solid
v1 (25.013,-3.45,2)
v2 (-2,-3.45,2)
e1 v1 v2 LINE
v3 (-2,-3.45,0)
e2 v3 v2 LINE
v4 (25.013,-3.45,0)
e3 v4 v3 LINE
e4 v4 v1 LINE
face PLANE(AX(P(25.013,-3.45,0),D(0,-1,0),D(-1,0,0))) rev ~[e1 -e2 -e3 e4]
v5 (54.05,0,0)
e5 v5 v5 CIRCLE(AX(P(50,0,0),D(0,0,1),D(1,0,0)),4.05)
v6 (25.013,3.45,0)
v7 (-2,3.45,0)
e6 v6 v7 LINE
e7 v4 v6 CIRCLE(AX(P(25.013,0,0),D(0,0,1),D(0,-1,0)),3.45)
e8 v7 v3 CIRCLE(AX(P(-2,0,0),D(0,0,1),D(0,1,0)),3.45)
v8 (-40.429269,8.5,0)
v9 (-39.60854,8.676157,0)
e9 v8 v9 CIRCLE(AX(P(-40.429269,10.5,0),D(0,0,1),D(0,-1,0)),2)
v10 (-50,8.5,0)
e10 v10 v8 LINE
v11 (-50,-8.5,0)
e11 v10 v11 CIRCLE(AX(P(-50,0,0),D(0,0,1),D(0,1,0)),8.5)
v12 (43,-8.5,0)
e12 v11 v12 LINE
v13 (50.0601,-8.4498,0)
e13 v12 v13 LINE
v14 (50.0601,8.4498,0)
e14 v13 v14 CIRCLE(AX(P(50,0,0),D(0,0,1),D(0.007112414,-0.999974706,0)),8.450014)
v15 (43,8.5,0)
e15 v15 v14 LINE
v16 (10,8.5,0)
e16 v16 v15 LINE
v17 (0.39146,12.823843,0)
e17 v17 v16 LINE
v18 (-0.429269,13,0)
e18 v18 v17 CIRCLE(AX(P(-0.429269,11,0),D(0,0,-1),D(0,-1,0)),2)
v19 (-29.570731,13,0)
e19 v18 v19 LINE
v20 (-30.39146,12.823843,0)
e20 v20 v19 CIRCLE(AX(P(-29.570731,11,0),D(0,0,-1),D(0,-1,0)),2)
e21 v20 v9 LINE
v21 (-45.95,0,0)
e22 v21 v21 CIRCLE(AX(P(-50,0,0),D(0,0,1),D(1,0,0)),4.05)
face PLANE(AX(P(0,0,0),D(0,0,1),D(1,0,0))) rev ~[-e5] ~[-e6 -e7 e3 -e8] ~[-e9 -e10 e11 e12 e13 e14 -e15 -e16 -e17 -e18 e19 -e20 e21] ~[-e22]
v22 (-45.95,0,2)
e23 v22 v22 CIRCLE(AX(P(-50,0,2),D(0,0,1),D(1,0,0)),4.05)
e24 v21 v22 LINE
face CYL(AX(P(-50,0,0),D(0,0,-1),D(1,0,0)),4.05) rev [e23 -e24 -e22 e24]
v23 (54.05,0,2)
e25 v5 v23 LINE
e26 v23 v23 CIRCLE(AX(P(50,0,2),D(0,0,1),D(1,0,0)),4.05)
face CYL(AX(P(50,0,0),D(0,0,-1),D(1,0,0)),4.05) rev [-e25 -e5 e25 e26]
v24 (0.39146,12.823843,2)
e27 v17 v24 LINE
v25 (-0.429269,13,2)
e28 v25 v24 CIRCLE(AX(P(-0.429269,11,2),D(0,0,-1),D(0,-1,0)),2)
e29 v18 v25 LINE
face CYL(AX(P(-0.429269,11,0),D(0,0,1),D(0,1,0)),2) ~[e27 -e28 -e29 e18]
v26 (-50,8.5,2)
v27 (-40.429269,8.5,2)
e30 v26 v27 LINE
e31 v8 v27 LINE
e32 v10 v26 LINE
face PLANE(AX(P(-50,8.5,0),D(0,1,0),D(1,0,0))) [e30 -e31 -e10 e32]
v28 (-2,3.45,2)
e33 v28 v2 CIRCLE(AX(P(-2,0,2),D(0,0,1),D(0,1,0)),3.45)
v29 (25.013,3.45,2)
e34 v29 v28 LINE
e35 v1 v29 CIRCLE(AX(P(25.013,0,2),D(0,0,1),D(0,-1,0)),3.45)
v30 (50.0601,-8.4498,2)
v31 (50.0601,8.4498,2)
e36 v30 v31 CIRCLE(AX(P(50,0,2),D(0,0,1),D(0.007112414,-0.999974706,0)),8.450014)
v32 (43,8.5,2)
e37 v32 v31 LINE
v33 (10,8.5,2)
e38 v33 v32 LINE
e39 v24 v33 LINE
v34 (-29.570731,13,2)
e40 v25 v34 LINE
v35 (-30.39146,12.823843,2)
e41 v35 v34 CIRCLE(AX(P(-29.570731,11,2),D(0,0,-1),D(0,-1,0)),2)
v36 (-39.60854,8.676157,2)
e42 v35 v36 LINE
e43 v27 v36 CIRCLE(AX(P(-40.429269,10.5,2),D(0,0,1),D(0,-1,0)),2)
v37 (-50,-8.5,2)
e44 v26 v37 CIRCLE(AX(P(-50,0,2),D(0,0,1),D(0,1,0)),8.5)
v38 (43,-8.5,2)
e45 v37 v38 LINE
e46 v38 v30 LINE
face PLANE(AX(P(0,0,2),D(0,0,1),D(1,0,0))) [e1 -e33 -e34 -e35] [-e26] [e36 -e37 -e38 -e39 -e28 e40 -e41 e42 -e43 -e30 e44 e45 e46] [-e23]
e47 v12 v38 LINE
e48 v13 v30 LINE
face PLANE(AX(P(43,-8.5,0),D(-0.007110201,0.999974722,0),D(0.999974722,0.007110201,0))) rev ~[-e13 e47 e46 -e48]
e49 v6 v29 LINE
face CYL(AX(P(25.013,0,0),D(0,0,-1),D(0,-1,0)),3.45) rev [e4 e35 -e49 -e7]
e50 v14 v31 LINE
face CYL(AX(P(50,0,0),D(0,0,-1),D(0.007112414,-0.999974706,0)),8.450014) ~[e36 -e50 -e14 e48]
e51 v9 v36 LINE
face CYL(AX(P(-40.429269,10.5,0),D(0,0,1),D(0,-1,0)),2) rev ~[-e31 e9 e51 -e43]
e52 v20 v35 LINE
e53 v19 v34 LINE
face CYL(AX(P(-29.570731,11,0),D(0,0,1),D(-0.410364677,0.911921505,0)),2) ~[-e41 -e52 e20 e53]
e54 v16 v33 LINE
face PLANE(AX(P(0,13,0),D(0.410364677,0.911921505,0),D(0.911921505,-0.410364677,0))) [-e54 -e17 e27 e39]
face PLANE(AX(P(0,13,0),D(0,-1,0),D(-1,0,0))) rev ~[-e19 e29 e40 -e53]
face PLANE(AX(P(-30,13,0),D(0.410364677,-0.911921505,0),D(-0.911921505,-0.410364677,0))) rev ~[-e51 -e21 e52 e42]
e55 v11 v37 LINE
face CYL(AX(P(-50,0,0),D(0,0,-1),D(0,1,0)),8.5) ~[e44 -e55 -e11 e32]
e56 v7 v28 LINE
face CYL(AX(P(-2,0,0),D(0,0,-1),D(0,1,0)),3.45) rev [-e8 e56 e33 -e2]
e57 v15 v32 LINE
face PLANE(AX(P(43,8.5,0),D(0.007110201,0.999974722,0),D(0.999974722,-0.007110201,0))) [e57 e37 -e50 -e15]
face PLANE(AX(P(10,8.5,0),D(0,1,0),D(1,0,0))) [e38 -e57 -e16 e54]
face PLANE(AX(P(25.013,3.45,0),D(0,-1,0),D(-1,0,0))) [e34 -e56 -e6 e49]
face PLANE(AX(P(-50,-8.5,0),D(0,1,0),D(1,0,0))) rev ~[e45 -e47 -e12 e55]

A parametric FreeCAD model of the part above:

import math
import FreeCAD as App
import Part
import Sketcher

V = App.Vector
Q = App.Units.Quantity


def edges_at(feature, points):
    """Names of the edges that pass closest to the given points."""
    edges = feature.Shape.Edges
    near = lambda p: min(range(len(edges)), key=lambda i: edges[i].distToShape(Part.Vertex(*p))[0])
    return sorted({f"Edge{near(p) + 1}" for p in points})

doc = App.newDocument("Part")
params = doc.addObject("Spreadsheet::Sheet", "Params")
for row, (alias, value) in enumerate([
    ("sketch1_diameter", "3.1 mm"),
    ("sketch1_diameter2", "8.1 mm"),
    ("sketch1_radius", "8.5 mm"),
    ("sketch1_width", "10 mm"),
    ("sketch1_width2", "30 mm"),
    ("pad1_length", "2 mm"),
    ("fillet_radius", "2 mm"),
    ("sketch2_diameter", "3.1 mm"),
    ("pad2_length", "2 mm"),
], start=1):
    params.set(f"A{row}", alias)
    params.set(f"B{row}", "=" + value)
    params.setAlias(f"B{row}", alias)

body = doc.addObject("PartDesign::Body", "Body")

sketch1 = body.newObject("Sketcher::SketchObject", "Sketch")
sketch1.AttachmentSupport = (doc.getObject("XY_Plane"), [""])
sketch1.MapMode = "FlatFace"
sketch1.addGeometry([
    Part.LineSegment(V(-40, 8.5, 0), V(-50, 8.5, 0)),
    Part.ArcOfCircle(Part.Circle(V(-50, 0, 0), V(0, 0, 1), 8.5), math.radians(90), math.radians(270)),
    Part.LineSegment(V(-50, -8.5, 0), V(43, -8.5, 0)),
    Part.LineSegment(V(43, -8.5, 0), V(50.1, -8.4, 0)),
    Part.ArcOfCircle(Part.Circle(V(50, 0, 0), V(0, 0, 1), 8.5), math.radians(-90), math.radians(90)),
    Part.LineSegment(V(50.1, 8.4, 0), V(43, 8.5, 0)),
    Part.LineSegment(V(43, 8.5, 0), V(10, 8.5, 0)),
    Part.LineSegment(V(10, 8.5, 0), V(0, 13, 0)),
    Part.LineSegment(V(0, 13, 0), V(-30, 13, 0)),
    Part.LineSegment(V(-30, 13, 0), V(-40, 8.5, 0)),
    Part.Circle(V(-38.5, -6, 0), V(0, 0, 1), 1.6),
    Part.Circle(V(-26.5, -6, 0), V(0, 0, 1), 1.6),
    Part.Circle(V(-14.5, -6, 0), V(0, 0, 1), 1.6),
    Part.Circle(V(-50, 0, 0), V(0, 0, 1), 4),
    Part.ArcOfCircle(Part.Circle(V(25, 0, 0), V(0, 0, 1), 3.5), math.radians(-90), math.radians(90)),
    Part.LineSegment(V(25, -3.5, 0), V(-2, -3.5, 0)),
    Part.ArcOfCircle(Part.Circle(V(-2, 0, 0), V(0, 0, 1), 3.5), math.radians(90), math.radians(270)),
    Part.LineSegment(V(-2, 3.5, 0), V(25, 3.5, 0)),
    Part.Circle(V(50, 0, 0), V(0, 0, 1), 4),
], False)
sketch1.addConstraint([
    Sketcher.Constraint("Tangent", 0, 2, 1, 1),
    Sketcher.Constraint("Tangent", 1, 2, 2, 1),
    Sketcher.Constraint("Coincident", 2, 2, 3, 1),
    Sketcher.Constraint("Tangent", 3, 2, 4, 1),
    Sketcher.Constraint("Tangent", 4, 2, 5, 1),
    Sketcher.Constraint("Coincident", 5, 2, 6, 1),
    Sketcher.Constraint("Coincident", 6, 2, 7, 1),
    Sketcher.Constraint("Coincident", 7, 2, 8, 1),
    Sketcher.Constraint("Coincident", 8, 2, 9, 1),
    Sketcher.Constraint("Coincident", 9, 2, 0, 1),
    Sketcher.Constraint("Tangent", 14, 1, 15, 1),
    Sketcher.Constraint("Tangent", 15, 2, 16, 2),
    Sketcher.Constraint("Tangent", 16, 1, 17, 1),
    Sketcher.Constraint("Tangent", 17, 2, 14, 2),
    Sketcher.Constraint("Horizontal", 0),
    Sketcher.Constraint("Horizontal", 2),
    Sketcher.Constraint("Horizontal", 6),
    Sketcher.Constraint("Horizontal", 8),
    Sketcher.Constraint("Horizontal", 15),
    Sketcher.Constraint("Horizontal", 17),
    Sketcher.Constraint("Coincident", 13, 3, 1, 3),
    Sketcher.Constraint("Coincident", 18, 3, 4, 3),
    Sketcher.Constraint("Equal", 10, 11),
    Sketcher.Constraint("Equal", 11, 12),
    Sketcher.Constraint("Equal", 13, 18),
    Sketcher.Constraint("Symmetric", 1, 3, 4, 3, -1, 1),
    Sketcher.Constraint("Symmetric", 3, 2, 4, 2, -1),
    Sketcher.Constraint("PointOnObject", 14, 3, -1),
    Sketcher.Constraint("PointOnObject", 7, 2, -2),
    Sketcher.Constraint("Horizontal", 10, 3, 11, 3),
    Sketcher.Constraint("Horizontal", 11, 3, 12, 3),
    Sketcher.Constraint("Horizontal", 0, 2, 5, 2),
    Sketcher.Constraint("Equal", 7, 9),
    Sketcher.Constraint("Diameter", 10, Q("3.1 mm")),
    Sketcher.Constraint("Diameter", 13, Q("8.1 mm")),
    Sketcher.Constraint("Radius", 1, Q("8.5 mm")),
    Sketcher.Constraint("DistanceX", 0, 2, 0, 1, Q("10 mm")),
    Sketcher.Constraint("DistanceX", 8, 2, 8, 1, Q("30 mm")),
    Sketcher.Constraint("Radius", 4, Q("8.45 mm")),
    Sketcher.Constraint("Radius", 14, Q("3.45 mm")),
    Sketcher.Constraint("DistanceX", -1, 1, 6, 2, Q("10 mm")),
    Sketcher.Constraint("DistanceY", -1, 1, 7, 2, Q("13 mm")),
    Sketcher.Constraint("DistanceX", 16, 3, 18, 3, Q("52 mm")),
    Sketcher.Constraint("DistanceX", 2, 2, 4, 3, Q("7 mm")),
    Sketcher.Constraint("DistanceY", 1, 2, 10, 3, Q("2.5 mm")),
    Sketcher.Constraint("DistanceX", 10, 3, 8, 2, Q("8.5 mm")),
    Sketcher.Constraint("DistanceX", 15, 2, 15, 1, Q("27.013 mm")),
    Sketcher.Constraint("DistanceX", 10, 3, 11, 3, Q("12 mm")),
    Sketcher.Constraint("DistanceX", 11, 3, 12, 3, Q("12 mm")),
])
sketch1.setExpression("Constraints[33]", "Params.sketch1_diameter")
sketch1.setExpression("Constraints[34]", "Params.sketch1_diameter2")
sketch1.setExpression("Constraints[35]", "Params.sketch1_radius")
sketch1.setExpression("Constraints[36]", "Params.sketch1_width")
sketch1.setExpression("Constraints[37]", "Params.sketch1_width2")
pad1 = body.newObject("PartDesign::Pad", "Pad")
pad1.Profile = sketch1
pad1.setExpression("Length", "Params.pad1_length")
doc.recompute()

fillet = body.newObject("PartDesign::Fillet", "Fillet")
fillet.Base = (pad1, edges_at(pad1, [
    (-40, 8.5, 1),
    (-30, 13, 1),
    (0, 13, 1),
    (43, 8.5, 1),
]))
fillet.setExpression("Radius", "Params.fillet_radius")

sketch2 = body.newObject("Sketcher::SketchObject", "Sketch001")
sketch2.AttachmentSupport = (doc.getObject("XY_Plane"), [""])
sketch2.MapMode = "FlatFace"
sketch2.addGeometry([
    Part.Circle(V(-38.5, -6, 0), V(0, 0, 1), 1.6),
    Part.Circle(V(-26.5, -6, 0), V(0, 0, 1), 1.6),
    Part.Circle(V(-14.5, -6, 0), V(0, 0, 1), 1.6),
], False)
sketch2.addConstraint([
    Sketcher.Constraint("Equal", 0, 1),
    Sketcher.Constraint("Equal", 1, 2),
    Sketcher.Constraint("Horizontal", 0, 3, 1, 3),
    Sketcher.Constraint("Horizontal", 1, 3, 2, 3),
    Sketcher.Constraint("Diameter", 0, Q("3.1 mm")),
    Sketcher.Constraint("DistanceY", 0, 3, -1, 1, Q("6 mm")),
    Sketcher.Constraint("DistanceX", 0, 3, 1, 3, Q("12 mm")),
    Sketcher.Constraint("DistanceX", 1, 3, 2, 3, Q("12 mm")),
    Sketcher.Constraint("DistanceX", 0, 3, -1, 1, Q("38.5 mm")),
])
sketch2.setExpression("Constraints[4]", "Params.sketch2_diameter")
pad2 = body.newObject("PartDesign::Pad", "Pad001")
pad2.Profile = sketch2
pad2.setExpression("Length", "Params.pad2_length")

doc.recompute()
